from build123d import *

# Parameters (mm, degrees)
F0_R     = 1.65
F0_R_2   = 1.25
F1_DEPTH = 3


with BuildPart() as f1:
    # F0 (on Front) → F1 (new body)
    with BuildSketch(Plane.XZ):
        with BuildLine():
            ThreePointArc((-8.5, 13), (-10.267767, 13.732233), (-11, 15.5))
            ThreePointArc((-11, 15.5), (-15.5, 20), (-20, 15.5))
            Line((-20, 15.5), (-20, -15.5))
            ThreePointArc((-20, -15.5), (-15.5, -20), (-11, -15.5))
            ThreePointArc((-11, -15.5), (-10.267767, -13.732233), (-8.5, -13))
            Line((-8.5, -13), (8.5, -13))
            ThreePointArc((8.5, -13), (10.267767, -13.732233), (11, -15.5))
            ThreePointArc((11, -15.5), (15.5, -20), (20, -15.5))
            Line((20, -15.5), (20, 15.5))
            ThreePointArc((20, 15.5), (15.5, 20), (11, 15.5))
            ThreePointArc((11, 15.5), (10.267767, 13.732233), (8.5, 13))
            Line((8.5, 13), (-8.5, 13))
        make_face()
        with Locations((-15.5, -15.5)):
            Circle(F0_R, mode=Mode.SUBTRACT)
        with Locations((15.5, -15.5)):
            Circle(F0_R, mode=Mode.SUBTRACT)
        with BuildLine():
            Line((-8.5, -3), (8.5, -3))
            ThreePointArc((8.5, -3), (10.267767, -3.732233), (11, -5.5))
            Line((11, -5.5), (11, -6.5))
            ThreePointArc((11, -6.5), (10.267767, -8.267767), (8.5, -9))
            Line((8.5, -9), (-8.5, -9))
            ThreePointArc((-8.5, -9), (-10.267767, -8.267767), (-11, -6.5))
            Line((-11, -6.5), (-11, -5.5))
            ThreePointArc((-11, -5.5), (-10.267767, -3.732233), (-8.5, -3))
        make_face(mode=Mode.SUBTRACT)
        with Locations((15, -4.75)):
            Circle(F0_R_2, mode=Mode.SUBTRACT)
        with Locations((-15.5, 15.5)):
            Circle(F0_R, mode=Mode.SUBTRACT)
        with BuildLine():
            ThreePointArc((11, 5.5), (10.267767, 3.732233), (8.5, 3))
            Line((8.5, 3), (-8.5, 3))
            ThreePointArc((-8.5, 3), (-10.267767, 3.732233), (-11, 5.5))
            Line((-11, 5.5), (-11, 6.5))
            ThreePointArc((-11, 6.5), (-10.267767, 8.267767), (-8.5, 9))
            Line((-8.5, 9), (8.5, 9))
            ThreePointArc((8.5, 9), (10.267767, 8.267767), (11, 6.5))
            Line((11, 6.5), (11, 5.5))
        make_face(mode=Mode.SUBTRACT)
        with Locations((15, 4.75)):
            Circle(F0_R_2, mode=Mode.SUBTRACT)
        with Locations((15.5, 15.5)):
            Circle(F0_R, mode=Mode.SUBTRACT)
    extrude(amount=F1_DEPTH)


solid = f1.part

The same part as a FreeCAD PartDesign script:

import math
import FreeCAD as App
import Part
import Sketcher

doc = App.newDocument("Part")
params = doc.addObject("Spreadsheet::Sheet", "Params")
for row, (alias, value) in enumerate([
    ("sketch1_diameter", "3.3 mm"),
    ("sketch1_diameter2", "2.5 mm"),
    ("sketch1_radius", "2.5 mm"),
    ("sketch1_radius2", "4.5 mm"),
    ("sketch1_width", "17 mm"),
    ("pad1_length", "3 mm"),
], start=1):
    params.set(f"A{row}", alias)
    params.set(f"B{row}", "=" + value)
    params.setAlias(f"B{row}", alias)

body = doc.addObject("PartDesign::Body", "Body")

sketch1 = body.newObject("Sketcher::SketchObject", "Sketch")
sketch1.AttachmentSupport = (doc.getObject("XZ_Plane"), [""])
sketch1.MapMode = "FlatFace"
sketch1.addGeometry(Part.ArcOfCircle(Part.Circle(App.Vector(-8.5, 15.5, 0), App.Vector(0, 0, 1), 2.5), math.radians(179.999996), math.radians(270.000004)), False)
sketch1.addGeometry(Part.ArcOfCircle(Part.Circle(App.Vector(-15.5, 15.5, 0), App.Vector(0, 0, 1), 4.5), math.radians(0), math.radians(180)), False)
sketch1.addGeometry(Part.LineSegment(App.Vector(-20, 15.5, 0), App.Vector(-20, -15.5, 0)), False)
sketch1.addGeometry(Part.ArcOfCircle(Part.Circle(App.Vector(-15.5, -15.5, 0), App.Vector(0, 0, 1), 4.5), math.radians(180), math.radians(360)), False)
sketch1.addGeometry(Part.ArcOfCircle(Part.Circle(App.Vector(-8.5, -15.5, 0), App.Vector(0, 0, 1), 2.5), math.radians(89.999996), math.radians(180.000004)), False)
sketch1.addGeometry(Part.LineSegment(App.Vector(-8.5, -13, 0), App.Vector(8.5, -13, 0)), False)
sketch1.addGeometry(Part.ArcOfCircle(Part.Circle(App.Vector(8.5, -15.5, 0), App.Vector(0, 0, 1), 2.5), math.radians(-0.000004), math.radians(90.000004)), False)
sketch1.addGeometry(Part.ArcOfCircle(Part.Circle(App.Vector(15.5, -15.5, 0), App.Vector(0, 0, 1), 4.5), math.radians(180), math.radians(360)), False)
sketch1.addGeometry(Part.LineSegment(App.Vector(20, -15.5, 0), App.Vector(20, 15.5, 0)), False)
sketch1.addGeometry(Part.ArcOfCircle(Part.Circle(App.Vector(15.5, 15.5, 0), App.Vector(0, 0, 1), 4.5), math.radians(0), math.radians(180)), False)
sketch1.addGeometry(Part.ArcOfCircle(Part.Circle(App.Vector(8.5, 15.5, 0), App.Vector(0, 0, 1), 2.5), math.radians(-90.000004), math.radians(0.000004)), False)
sketch1.addGeometry(Part.LineSegment(App.Vector(8.5, 13, 0), App.Vector(-8.5, 13, 0)), False)
sketch1.addGeometry(Part.Circle(App.Vector(-15.5, -15.5, 0), App.Vector(0, 0, 1), 1.65), False)
sketch1.addGeometry(Part.Circle(App.Vector(15.5, -15.5, 0), App.Vector(0, 0, 1), 1.65), False)
sketch1.addGeometry(Part.ArcOfCircle(Part.Circle(App.Vector(-8.5, -5.5, 0), App.Vector(0, 0, 1), 2.5), math.radians(89.999996), math.radians(180.000004)), False)
sketch1.addGeometry(Part.LineSegment(App.Vector(-8.5, -3, 0), App.Vector(8.5, -3, 0)), False)
sketch1.addGeometry(Part.ArcOfCircle(Part.Circle(App.Vector(8.5, -5.5, 0), App.Vector(0, 0, 1), 2.5), math.radians(-0.000004), math.radians(90.000004)), False)
sketch1.addGeometry(Part.LineSegment(App.Vector(11, -5.5, 0), App.Vector(11, -6.5, 0)), False)
sketch1.addGeometry(Part.ArcOfCircle(Part.Circle(App.Vector(8.5, -6.5, 0), App.Vector(0, 0, 1), 2.5), math.radians(-90.000004), math.radians(0.000004)), False)
sketch1.addGeometry(Part.LineSegment(App.Vector(8.5, -9, 0), App.Vector(-8.5, -9, 0)), False)
sketch1.addGeometry(Part.ArcOfCircle(Part.Circle(App.Vector(-8.5, -6.5, 0), App.Vector(0, 0, 1), 2.5), math.radians(179.999996), math.radians(270.000004)), False)
sketch1.addGeometry(Part.LineSegment(App.Vector(-11, -6.5, 0), App.Vector(-11, -5.5, 0)), False)
sketch1.addGeometry(Part.Circle(App.Vector(15, -4.75, 0), App.Vector(0, 0, 1), 1.25), False)
sketch1.addGeometry(Part.Circle(App.Vector(-15.5, 15.5, 0), App.Vector(0, 0, 1), 1.65), False)
sketch1.addGeometry(Part.LineSegment(App.Vector(11, 6.5, 0), App.Vector(11, 5.5, 0)), False)
sketch1.addGeometry(Part.ArcOfCircle(Part.Circle(App.Vector(8.5, 5.5, 0), App.Vector(0, 0, 1), 2.5), math.radians(-90.000004), math.radians(0.000004)), False)
sketch1.addGeometry(Part.LineSegment(App.Vector(8.5, 3, 0), App.Vector(-8.5, 3, 0)), False)
sketch1.addGeometry(Part.ArcOfCircle(Part.Circle(App.Vector(-8.5, 5.5, 0), App.Vector(0, 0, 1), 2.5), math.radians(179.999996), math.radians(270.000004)), False)
sketch1.addGeometry(Part.LineSegment(App.Vector(-11, 5.5, 0), App.Vector(-11, 6.5, 0)), False)
sketch1.addGeometry(Part.ArcOfCircle(Part.Circle(App.Vector(-8.5, 6.5, 0), App.Vector(0, 0, 1), 2.5), math.radians(89.999996), math.radians(180.000004)), False)
sketch1.addGeometry(Part.LineSegment(App.Vector(-8.5, 9, 0), App.Vector(8.5, 9, 0)), False)
sketch1.addGeometry(Part.ArcOfCircle(Part.Circle(App.Vector(8.5, 6.5, 0), App.Vector(0, 0, 1), 2.5), math.radians(-0.000004), math.radians(90.000004)), False)
sketch1.addGeometry(Part.Circle(App.Vector(15, 4.75, 0), App.Vector(0, 0, 1), 1.25), False)
sketch1.addGeometry(Part.Circle(App.Vector(15.5, 15.5, 0), App.Vector(0, 0, 1), 1.65), False)
sketch1.addConstraint(Sketcher.Constraint("Tangent", 0, 1, 1, 1))
sketch1.addConstraint(Sketcher.Constraint("Tangent", 1, 2, 2, 1))
sketch1.addConstraint(Sketcher.Constraint("Tangent", 2, 2, 3, 1))
sketch1.addConstraint(Sketcher.Constraint("Tangent", 3, 2, 4, 2))
sketch1.addConstraint(Sketcher.Constraint("Tangent", 4, 1, 5, 1))
sketch1.addConstraint(Sketcher.Constraint("Tangent", 5, 2, 6, 2))
sketch1.addConstraint(Sketcher.Constraint("Tangent", 6, 1, 7, 1))
sketch1.addConstraint(Sketcher.Constraint("Tangent", 7, 2, 8, 1))
sketch1.addConstraint(Sketcher.Constraint("Tangent", 8, 2, 9, 1))
sketch1.addConstraint(Sketcher.Constraint("Tangent", 9, 2, 10, 2))
sketch1.addConstraint(Sketcher.Constraint("Tangent", 10, 1, 11, 1))
sketch1.addConstraint(Sketcher.Constraint("Tangent", 11, 2, 0, 2))
sketch1.addConstraint(Sketcher.Constraint("Tangent", 14, 1, 15, 1))
sketch1.addConstraint(Sketcher.Constraint("Tangent", 15, 2, 16, 2))
sketch1.addConstraint(Sketcher.Constraint("Tangent", 16, 1, 17, 1))
sketch1.addConstraint(Sketcher.Constraint("Tangent", 17, 2, 18, 2))
sketch1.addConstraint(Sketcher.Constraint("Tangent", 18, 1, 19, 1))
sketch1.addConstraint(Sketcher.Constraint("Tangent", 19, 2, 20, 2))
sketch1.addConstraint(Sketcher.Constraint("Tangent", 20, 1, 21, 1))
sketch1.addConstraint(Sketcher.Constraint("Tangent", 21, 2, 14, 2))
sketch1.addConstraint(Sketcher.Constraint("Tangent", 24, 2, 25, 2))
sketch1.addConstraint(Sketcher.Constraint("Tangent", 25, 1, 26, 1))
sketch1.addConstraint(Sketcher.Constraint("Tangent", 26, 2, 27, 2))
sketch1.addConstraint(Sketcher.Constraint("Tangent", 27, 1, 28, 1))
sketch1.addConstraint(Sketcher.Constraint("Tangent", 28, 2, 29, 2))
sketch1.addConstraint(Sketcher.Constraint("Tangent", 29, 1, 30, 1))
sketch1.addConstraint(Sketcher.Constraint("Tangent", 30, 2, 31, 2))
sketch1.addConstraint(Sketcher.Constraint("Tangent", 31, 1, 24, 1))
sketch1.addConstraint(Sketcher.Constraint("Vertical", 2))
sketch1.addConstraint(Sketcher.Constraint("Horizontal", 5))
sketch1.addConstraint(Sketcher.Constraint("Vertical", 8))
sketch1.addConstraint(Sketcher.Constraint("Horizontal", 11))
sketch1.addConstraint(Sketcher.Constraint("Horizontal", 15))
sketch1.addConstraint(Sketcher.Constraint("Vertical", 17))
sketch1.addConstraint(Sketcher.Constraint("Horizontal", 19))
sketch1.addConstraint(Sketcher.Constraint("Vertical", 21))
sketch1.addConstraint(Sketcher.Constraint("Vertical", 24))
sketch1.addConstraint(Sketcher.Constraint("Horizontal", 26))
sketch1.addConstraint(Sketcher.Constraint("Vertical", 28))
sketch1.addConstraint(Sketcher.Constraint("Horizontal", 30))
sketch1.addConstraint(Sketcher.Constraint("Coincident", 12, 3, 3, 3))
sketch1.addConstraint(Sketcher.Constraint("Coincident", 13, 3, 7, 3))
sketch1.addConstraint(Sketcher.Constraint("Coincident", 23, 3, 1, 3))
sketch1.addConstraint(Sketcher.Constraint("Coincident", 33, 3, 9, 3))
sketch1.addConstraint(Sketcher.Constraint("Equal", 1, 3))
sketch1.addConstraint(Sketcher.Constraint("Equal", 0, 4))
sketch1.addConstraint(Sketcher.Constraint("Equal", 4, 6))
sketch1.addConstraint(Sketcher.Constraint("Equal", 3, 7))
sketch1.addConstraint(Sketcher.Constraint("Equal", 7, 9))
sketch1.addConstraint(Sketcher.Constraint("Equal", 6, 10))
sketch1.addConstraint(Sketcher.Constraint("Equal", 12, 13))
sketch1.addConstraint(Sketcher.Constraint("Equal", 10, 14))
sketch1.addConstraint(Sketcher.Constraint("Equal", 14, 16))
sketch1.addConstraint(Sketcher.Constraint("Equal", 16, 18))
sketch1.addConstraint(Sketcher.Constraint("Equal", 18, 20))
sketch1.addConstraint(Sketcher.Constraint("Equal", 13, 23))
sketch1.addConstraint(Sketcher.Constraint("Equal", 20, 25))
sketch1.addConstraint(Sketcher.Constraint("Equal", 25, 27))
sketch1.addConstraint(Sketcher.Constraint("Equal", 27, 29))
sketch1.addConstraint(Sketcher.Constraint("Equal", 29, 31))
sketch1.addConstraint(Sketcher.Constraint("Equal", 22, 32))
sketch1.addConstraint(Sketcher.Constraint("Equal", 23, 33))
sketch1.addConstraint(Sketcher.Constraint("Symmetric", 0, 3, 6, 3, -1, 1))
sketch1.addConstraint(Sketcher.Constraint("Symmetric", 14, 3, 25, 3, -1, 1))
sketch1.addConstraint(Sketcher.Constraint("Symmetric", 18, 3, 29, 3, -1, 1))
sketch1.addConstraint(Sketcher.Constraint("Symmetric", 22, 3, 32, 3, -1))
sketch1.addConstraint(Sketcher.Constraint("Horizontal", 0, 3, 1, 3))
sketch1.addConstraint(Sketcher.Constraint("Horizontal", 3, 3, 4, 3))
sketch1.addConstraint(Sketcher.Constraint("Horizontal", 6, 3, 7, 3))
sketch1.addConstraint(Sketcher.Constraint("Horizontal", 1, 3, 9, 3))
sketch1.addConstraint(Sketcher.Constraint("Vertical", 4, 3, 14, 3))
sketch1.addConstraint(Sketcher.Constraint("Vertical", 10, 3, 16, 3))
sketch1.addConstraint(Sketcher.Constraint("Diameter", 12, 3.3))
sketch1.addConstraint(Sketcher.Constraint("Diameter", 22, 2.5))
sketch1.addConstraint(Sketcher.Constraint("Radius", 0, 2.5))
sketch1.addConstraint(Sketcher.Constraint("Radius", 1, 4.5))
sketch1.addConstraint(Sketcher.Constraint("DistanceX", 5, 1, 5, 2, 17.0))
sketch1.addConstraint(Sketcher.Constraint("DistanceY", 2, 2, 2, 1, 31.0))
sketch1.addConstraint(Sketcher.Constraint("DistanceY", 17, 2, 17, 1, 1.0))
sketch1.addConstraint(Sketcher.Constraint("DistanceX", -1, 1, 22, 3, 15.0))
sketch1.addConstraint(Sketcher.Constraint("DistanceY", 14, 1, -1, 1, 3.0))
sketch1.addConstraint(Sketcher.Constraint("DistanceY", 22, 3, 32, 3, 9.5))
sketch1.setExpression("Constraints[72]", "Params.sketch1_diameter")
sketch1.setExpression("Constraints[73]", "Params.sketch1_diameter2")
sketch1.setExpression("Constraints[74]", "Params.sketch1_radius")
sketch1.setExpression("Constraints[75]", "Params.sketch1_radius2")
sketch1.setExpression("Constraints[76]", "Params.sketch1_width")
pad1 = body.newObject("PartDesign::Pad", "Pad")
pad1.Profile = sketch1
pad1.setExpression("Length", "Params.pad1_length")

doc.recompute()
